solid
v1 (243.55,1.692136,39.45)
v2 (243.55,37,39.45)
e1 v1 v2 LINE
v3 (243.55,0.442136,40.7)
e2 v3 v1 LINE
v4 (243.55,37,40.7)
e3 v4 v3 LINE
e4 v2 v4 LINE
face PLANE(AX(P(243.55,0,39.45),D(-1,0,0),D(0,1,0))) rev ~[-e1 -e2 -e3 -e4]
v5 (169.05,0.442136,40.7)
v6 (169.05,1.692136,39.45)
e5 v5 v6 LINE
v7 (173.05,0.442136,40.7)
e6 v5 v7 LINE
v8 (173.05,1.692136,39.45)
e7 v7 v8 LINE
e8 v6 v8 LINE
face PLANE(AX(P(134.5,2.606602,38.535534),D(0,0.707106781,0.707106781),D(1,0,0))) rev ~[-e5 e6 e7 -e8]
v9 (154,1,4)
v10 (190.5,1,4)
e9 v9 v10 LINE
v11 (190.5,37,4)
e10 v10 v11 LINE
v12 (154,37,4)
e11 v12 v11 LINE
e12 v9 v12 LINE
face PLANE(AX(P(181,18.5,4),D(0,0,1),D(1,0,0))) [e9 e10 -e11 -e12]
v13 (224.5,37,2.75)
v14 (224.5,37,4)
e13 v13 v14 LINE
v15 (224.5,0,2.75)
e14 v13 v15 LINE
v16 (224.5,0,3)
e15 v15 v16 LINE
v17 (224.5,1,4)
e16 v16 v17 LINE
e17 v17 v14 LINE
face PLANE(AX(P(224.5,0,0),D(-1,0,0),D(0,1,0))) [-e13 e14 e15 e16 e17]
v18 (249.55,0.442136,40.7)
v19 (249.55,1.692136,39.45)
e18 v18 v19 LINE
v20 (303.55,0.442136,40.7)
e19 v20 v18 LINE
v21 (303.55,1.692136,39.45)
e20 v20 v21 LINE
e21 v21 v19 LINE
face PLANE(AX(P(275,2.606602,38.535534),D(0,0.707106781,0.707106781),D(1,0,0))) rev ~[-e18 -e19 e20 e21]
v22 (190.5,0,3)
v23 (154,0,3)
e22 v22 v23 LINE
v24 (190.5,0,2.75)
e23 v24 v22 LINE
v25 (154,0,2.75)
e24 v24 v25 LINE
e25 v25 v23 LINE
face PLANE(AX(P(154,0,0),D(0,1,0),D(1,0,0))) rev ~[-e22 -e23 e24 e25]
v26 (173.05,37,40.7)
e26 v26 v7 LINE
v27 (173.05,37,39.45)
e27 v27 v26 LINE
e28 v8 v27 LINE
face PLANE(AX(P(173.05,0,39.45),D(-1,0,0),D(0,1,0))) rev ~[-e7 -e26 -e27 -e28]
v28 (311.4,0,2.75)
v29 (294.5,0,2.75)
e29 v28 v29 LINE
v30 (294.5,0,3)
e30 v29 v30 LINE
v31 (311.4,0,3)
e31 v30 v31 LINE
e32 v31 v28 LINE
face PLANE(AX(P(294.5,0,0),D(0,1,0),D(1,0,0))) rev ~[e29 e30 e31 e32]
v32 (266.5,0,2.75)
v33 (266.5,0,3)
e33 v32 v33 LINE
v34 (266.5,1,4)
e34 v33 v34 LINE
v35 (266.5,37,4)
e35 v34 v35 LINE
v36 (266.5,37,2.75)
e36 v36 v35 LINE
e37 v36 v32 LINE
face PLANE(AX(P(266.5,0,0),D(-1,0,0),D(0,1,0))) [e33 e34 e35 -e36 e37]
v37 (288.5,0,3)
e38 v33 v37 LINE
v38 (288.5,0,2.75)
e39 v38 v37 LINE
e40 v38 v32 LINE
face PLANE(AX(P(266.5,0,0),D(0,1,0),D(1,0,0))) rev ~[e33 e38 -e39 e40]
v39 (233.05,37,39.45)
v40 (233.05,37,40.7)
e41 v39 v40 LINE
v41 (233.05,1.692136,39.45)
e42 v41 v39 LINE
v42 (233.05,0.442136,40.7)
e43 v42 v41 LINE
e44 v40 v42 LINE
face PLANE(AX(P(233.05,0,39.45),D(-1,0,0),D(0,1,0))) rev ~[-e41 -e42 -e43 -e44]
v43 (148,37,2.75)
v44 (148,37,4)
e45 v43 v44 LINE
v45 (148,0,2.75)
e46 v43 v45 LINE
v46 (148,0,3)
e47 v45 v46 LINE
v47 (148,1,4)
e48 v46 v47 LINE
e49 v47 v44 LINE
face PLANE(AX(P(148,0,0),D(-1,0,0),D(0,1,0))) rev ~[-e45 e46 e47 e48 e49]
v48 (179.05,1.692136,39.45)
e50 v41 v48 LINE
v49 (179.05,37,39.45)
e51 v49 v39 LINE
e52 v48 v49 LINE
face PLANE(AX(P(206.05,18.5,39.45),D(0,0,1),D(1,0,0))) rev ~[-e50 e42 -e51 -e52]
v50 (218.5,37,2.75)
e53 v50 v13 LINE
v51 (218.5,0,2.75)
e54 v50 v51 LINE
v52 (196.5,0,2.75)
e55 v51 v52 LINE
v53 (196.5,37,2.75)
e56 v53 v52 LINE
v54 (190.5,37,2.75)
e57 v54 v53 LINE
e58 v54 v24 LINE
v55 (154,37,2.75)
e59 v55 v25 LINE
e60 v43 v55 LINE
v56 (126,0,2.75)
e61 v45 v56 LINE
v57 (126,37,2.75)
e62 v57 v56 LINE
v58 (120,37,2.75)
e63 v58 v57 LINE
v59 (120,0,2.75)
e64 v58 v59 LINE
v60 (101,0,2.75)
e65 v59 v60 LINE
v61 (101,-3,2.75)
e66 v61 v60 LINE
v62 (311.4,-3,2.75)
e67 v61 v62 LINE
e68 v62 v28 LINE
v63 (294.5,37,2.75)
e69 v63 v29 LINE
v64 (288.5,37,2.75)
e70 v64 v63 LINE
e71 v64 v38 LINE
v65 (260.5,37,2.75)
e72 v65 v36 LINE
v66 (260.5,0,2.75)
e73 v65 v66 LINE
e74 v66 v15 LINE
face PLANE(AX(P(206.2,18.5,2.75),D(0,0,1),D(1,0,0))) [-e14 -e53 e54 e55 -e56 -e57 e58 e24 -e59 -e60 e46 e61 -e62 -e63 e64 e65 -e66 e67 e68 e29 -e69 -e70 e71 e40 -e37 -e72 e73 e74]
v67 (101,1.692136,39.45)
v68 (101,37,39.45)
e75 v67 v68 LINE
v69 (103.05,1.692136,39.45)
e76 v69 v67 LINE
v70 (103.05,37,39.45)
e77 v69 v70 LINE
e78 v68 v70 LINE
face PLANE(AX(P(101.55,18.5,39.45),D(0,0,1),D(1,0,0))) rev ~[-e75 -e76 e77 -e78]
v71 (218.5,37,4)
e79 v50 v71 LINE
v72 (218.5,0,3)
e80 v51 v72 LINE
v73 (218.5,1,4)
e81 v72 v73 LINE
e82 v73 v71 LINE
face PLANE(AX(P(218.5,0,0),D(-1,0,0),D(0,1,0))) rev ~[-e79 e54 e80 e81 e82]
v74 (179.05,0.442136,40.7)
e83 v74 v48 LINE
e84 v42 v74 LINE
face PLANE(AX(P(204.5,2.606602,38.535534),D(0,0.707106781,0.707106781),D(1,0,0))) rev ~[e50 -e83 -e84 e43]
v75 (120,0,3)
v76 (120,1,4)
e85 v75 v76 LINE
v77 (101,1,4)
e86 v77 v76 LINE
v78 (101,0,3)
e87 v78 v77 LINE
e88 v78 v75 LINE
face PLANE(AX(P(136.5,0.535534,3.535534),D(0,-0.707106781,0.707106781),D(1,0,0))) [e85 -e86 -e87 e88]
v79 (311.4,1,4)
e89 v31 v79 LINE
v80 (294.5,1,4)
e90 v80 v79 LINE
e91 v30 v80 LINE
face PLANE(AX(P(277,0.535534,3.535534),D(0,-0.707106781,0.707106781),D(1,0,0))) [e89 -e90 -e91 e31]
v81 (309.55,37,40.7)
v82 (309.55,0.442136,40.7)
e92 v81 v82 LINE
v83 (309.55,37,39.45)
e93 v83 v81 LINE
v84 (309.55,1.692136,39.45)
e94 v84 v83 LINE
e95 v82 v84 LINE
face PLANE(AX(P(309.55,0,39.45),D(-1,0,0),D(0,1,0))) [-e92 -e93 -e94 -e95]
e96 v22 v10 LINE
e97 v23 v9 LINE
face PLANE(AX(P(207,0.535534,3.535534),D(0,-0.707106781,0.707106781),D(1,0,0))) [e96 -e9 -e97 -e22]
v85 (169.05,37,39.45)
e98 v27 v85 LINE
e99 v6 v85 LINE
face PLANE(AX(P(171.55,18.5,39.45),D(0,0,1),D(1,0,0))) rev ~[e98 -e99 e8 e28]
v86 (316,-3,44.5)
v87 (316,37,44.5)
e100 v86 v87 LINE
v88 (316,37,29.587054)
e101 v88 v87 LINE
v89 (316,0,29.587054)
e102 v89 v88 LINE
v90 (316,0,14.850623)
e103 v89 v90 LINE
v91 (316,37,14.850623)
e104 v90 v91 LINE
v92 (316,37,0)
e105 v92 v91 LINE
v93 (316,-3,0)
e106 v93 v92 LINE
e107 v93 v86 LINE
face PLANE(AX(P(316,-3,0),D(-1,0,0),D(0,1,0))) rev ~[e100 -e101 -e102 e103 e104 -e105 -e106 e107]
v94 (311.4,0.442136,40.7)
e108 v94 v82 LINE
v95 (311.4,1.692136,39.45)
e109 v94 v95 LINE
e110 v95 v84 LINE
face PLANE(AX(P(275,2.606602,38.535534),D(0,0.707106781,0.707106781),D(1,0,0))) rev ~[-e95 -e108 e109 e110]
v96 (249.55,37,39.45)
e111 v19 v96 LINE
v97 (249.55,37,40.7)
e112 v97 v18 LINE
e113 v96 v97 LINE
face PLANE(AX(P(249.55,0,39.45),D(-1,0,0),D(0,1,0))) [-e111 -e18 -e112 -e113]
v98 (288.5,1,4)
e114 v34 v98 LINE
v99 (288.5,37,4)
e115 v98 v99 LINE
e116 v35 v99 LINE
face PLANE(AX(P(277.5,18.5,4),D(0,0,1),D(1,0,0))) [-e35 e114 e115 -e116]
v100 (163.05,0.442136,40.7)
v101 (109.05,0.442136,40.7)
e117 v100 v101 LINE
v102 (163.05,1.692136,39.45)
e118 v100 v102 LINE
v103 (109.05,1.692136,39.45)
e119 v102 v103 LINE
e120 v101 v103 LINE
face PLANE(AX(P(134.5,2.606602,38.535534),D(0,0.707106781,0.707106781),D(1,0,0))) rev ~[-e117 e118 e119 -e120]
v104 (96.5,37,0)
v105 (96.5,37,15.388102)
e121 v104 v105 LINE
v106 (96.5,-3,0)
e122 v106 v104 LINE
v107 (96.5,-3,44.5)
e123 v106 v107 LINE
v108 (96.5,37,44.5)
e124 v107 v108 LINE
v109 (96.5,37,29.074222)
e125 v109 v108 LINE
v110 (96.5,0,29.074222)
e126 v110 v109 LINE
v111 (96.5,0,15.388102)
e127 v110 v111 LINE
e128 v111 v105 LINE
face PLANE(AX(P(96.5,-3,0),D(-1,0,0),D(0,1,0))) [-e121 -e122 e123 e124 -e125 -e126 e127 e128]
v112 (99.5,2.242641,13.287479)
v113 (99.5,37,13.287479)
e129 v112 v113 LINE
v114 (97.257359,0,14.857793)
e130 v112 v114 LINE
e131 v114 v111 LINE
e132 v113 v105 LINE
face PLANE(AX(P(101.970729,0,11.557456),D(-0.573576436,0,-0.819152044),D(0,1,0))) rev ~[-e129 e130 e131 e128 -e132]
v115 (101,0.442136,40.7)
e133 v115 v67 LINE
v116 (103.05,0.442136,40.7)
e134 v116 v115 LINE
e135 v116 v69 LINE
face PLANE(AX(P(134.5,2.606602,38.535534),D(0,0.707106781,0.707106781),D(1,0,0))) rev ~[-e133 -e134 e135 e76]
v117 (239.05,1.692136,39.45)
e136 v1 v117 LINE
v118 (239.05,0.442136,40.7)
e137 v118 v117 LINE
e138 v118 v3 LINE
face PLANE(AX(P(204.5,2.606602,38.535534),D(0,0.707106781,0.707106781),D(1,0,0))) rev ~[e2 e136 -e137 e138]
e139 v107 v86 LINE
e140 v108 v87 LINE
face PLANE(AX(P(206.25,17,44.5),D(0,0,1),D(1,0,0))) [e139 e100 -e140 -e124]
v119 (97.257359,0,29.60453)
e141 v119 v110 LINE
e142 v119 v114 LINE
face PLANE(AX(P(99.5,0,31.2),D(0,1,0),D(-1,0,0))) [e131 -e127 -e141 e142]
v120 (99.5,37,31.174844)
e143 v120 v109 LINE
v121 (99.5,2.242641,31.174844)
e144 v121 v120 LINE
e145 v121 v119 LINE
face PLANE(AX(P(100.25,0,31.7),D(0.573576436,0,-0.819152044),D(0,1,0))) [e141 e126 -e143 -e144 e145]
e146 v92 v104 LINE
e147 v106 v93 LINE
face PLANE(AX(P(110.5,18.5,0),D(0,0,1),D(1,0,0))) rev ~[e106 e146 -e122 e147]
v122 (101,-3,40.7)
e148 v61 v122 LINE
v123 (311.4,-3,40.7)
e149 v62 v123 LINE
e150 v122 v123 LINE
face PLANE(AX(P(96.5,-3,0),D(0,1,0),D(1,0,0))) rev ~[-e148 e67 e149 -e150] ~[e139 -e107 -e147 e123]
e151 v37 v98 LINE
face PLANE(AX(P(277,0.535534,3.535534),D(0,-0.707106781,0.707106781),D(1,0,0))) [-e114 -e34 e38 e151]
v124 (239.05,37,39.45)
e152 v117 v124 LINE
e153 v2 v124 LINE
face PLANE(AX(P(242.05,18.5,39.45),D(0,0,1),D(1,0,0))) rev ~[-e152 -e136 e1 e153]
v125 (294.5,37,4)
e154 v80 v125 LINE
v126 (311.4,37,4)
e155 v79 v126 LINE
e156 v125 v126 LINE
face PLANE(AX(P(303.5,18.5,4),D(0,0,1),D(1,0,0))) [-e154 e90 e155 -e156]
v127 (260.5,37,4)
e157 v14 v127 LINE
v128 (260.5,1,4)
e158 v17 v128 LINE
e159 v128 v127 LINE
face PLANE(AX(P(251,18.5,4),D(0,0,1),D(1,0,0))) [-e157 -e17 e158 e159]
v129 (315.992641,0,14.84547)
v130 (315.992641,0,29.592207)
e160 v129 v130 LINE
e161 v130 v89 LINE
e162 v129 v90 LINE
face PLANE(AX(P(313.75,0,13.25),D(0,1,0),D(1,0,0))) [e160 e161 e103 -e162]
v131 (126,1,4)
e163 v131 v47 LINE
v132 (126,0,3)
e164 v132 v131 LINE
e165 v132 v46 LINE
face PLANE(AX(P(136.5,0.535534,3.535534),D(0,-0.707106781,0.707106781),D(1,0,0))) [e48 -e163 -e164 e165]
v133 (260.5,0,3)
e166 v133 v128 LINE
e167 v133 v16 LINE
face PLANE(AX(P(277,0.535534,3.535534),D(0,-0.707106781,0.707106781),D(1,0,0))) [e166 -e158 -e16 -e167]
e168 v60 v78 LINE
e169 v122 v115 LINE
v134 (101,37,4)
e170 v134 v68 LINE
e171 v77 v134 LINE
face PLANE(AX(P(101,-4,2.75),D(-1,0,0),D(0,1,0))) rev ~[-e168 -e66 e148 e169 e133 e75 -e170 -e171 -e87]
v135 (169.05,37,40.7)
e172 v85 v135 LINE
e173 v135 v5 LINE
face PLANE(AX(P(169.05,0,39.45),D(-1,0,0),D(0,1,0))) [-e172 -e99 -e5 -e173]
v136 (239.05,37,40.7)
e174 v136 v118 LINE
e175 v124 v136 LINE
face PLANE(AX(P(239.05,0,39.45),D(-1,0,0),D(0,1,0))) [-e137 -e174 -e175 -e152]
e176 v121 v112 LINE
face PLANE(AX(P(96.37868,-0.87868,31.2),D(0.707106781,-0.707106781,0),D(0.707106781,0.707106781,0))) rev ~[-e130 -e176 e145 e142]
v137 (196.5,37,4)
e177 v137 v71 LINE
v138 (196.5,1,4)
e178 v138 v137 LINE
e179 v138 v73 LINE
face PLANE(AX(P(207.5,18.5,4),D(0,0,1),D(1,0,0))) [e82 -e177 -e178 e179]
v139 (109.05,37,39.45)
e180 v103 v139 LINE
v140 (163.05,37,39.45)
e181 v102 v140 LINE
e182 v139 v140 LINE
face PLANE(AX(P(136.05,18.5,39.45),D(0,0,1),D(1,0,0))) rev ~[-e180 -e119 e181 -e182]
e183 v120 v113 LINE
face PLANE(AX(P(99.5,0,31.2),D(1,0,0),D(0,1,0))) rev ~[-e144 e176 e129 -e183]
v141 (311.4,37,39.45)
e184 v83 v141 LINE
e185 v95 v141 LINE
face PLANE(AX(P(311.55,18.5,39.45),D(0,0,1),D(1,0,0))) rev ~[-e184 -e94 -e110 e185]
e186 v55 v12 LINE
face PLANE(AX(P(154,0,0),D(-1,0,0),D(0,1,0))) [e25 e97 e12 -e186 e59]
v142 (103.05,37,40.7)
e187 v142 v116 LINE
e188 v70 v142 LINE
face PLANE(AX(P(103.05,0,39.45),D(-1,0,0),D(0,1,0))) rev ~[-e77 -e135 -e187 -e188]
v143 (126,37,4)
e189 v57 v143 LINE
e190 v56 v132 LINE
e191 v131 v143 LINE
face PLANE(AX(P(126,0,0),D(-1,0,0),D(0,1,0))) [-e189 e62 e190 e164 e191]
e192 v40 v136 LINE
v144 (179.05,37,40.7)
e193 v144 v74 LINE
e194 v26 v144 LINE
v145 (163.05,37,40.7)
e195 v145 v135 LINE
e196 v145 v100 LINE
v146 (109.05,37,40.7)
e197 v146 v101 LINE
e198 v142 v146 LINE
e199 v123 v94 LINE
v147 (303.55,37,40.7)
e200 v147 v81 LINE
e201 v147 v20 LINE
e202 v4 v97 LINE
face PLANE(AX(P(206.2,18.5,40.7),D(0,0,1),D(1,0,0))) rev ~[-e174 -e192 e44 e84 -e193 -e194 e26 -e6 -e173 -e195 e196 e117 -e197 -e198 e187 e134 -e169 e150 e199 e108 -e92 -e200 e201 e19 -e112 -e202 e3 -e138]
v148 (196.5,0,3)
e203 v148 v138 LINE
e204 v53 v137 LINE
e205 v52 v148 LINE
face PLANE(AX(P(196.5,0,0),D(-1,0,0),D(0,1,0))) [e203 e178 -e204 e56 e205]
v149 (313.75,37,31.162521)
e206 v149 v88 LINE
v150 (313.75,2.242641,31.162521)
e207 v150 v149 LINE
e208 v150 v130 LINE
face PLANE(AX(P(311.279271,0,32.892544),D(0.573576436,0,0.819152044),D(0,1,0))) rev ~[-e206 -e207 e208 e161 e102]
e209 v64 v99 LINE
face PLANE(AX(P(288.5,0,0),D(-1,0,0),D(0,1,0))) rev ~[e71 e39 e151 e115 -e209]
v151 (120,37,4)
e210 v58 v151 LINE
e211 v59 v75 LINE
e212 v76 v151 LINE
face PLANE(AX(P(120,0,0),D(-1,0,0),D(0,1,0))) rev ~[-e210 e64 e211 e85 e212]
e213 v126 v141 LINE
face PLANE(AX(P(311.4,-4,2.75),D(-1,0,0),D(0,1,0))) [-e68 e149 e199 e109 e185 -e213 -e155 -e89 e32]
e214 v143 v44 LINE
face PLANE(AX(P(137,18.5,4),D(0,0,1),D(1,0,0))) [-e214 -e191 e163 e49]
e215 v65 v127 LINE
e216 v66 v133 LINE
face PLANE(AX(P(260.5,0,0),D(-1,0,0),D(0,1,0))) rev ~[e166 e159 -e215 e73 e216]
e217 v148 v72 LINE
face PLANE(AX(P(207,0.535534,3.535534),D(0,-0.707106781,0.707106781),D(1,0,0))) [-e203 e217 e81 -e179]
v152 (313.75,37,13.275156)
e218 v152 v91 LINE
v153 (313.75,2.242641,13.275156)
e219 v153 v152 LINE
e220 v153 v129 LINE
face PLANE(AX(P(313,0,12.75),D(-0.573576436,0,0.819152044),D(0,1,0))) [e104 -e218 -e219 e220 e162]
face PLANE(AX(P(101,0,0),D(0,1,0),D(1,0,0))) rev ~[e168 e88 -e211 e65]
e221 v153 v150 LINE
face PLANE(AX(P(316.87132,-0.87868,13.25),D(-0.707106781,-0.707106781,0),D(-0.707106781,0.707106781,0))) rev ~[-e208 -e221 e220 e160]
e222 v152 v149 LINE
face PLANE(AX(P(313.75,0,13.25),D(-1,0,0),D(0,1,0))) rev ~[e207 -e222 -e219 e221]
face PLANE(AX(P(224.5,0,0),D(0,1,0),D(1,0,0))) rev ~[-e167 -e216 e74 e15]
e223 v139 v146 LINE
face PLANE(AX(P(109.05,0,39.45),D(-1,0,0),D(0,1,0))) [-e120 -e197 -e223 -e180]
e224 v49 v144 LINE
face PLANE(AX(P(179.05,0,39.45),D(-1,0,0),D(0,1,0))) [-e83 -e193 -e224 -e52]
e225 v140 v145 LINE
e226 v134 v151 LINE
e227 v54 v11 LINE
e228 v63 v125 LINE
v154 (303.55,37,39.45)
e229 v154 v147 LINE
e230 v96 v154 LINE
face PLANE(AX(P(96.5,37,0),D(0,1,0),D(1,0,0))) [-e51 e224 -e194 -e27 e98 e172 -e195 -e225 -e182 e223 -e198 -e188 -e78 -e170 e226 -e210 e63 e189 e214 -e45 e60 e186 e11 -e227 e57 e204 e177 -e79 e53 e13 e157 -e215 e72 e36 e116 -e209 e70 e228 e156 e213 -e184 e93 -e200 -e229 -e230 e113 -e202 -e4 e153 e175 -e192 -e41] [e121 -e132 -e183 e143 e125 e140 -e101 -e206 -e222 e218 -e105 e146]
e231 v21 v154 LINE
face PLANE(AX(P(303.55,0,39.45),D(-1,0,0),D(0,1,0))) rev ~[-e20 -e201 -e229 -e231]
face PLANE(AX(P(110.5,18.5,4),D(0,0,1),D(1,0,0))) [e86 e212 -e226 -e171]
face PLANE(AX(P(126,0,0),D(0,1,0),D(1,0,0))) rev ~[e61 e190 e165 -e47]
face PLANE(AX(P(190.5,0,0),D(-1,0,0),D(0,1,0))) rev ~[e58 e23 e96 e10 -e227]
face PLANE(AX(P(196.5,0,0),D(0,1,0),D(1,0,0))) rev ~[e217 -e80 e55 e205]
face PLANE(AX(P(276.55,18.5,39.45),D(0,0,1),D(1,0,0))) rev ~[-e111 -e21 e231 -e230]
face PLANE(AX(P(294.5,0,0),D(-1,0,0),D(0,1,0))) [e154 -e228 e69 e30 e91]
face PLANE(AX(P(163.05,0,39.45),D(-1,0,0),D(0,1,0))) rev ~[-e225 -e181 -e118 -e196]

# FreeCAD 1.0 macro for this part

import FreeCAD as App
import Part
import Sketcher


def add_polygon(sketch, points):
    """Adds a closed chain of lines whose ends are joined by coincident constraints."""
    first, n = sketch.GeometryCount, len(points)
    for a, b in zip(points, points[1:] + points[:1]):
        sketch.addGeometry(Part.LineSegment(App.Vector(*a, 0), App.Vector(*b, 0)), False)
    for i in range(n):
        sketch.addConstraint(Sketcher.Constraint("Coincident", first + i, 2, first + (i + 1) % n, 1))

doc = App.newDocument("Part")
body = doc.addObject("PartDesign::Body", "Body")

sketch1 = body.newObject("Sketcher::SketchObject", "Sketch")
sketch1.AttachmentSupport = (doc.getObject("XY_Plane"), [""])
sketch1.MapMode = "FlatFace"
add_polygon(sketch1, [(0, 10), (0, 0), (85, 0), (85, 10)])
sketch1.addConstraint([
    Sketcher.Constraint("Vertical", 0),
    Sketcher.Constraint("Horizontal", 1),
    Sketcher.Constraint("Vertical", 2),
    Sketcher.Constraint("Horizontal", 3),
    Sketcher.Constraint("Coincident", 0, 2, -1, 1),
    Sketcher.Constraint("DistanceX", 1, 1, 1, 2, 85.0),
    Sketcher.Constraint("DistanceY", 0, 2, 0, 1, 10.0),
])
pad1 = body.newObject("PartDesign::Pad", "Pad")
pad1.Profile = sketch1
pad1.Length = 10
body2 = doc.addObject("PartDesign::Body", "Body001")
doc.recompute()

body.Placement = App.Placement(App.Vector(13, -8, 35), App.Rotation(App.Vector(-1, 0, 0), 45))
boolean = body2.newObject("PartDesign::Boolean", "Boolean")
boolean.Type = "Fuse"
boolean.addObjects([body])
body3 = doc.addObject("PartDesign::Body", "Body002")

sketch2 = body3.newObject("Sketcher::SketchObject", "Sketch001")
sketch2.AttachmentSupport = (doc.getObject("XY_Plane002"), [""])
sketch2.MapMode = "FlatFace"
sketch2.AttachmentOffset = App.Placement(App.Vector(0, 0, 39.45), App.Rotation())
add_polygon(sketch2, [(21.1, 37), (21.1, 0), (24.1, 0), (24.1, 37)])
sketch2.addConstraint([
    Sketcher.Constraint("Vertical", 0),
    Sketcher.Constraint("Horizontal", 1),
    Sketcher.Constraint("Vertical", 2),
    Sketcher.Constraint("Horizontal", 3),
    Sketcher.Constraint("PointOnObject", 0, 2, -1),
    Sketcher.Constraint("DistanceX", 1, 1, 1, 2, 3.0),
    Sketcher.Constraint("DistanceY", 0, 2, 0, 1, 37.0),
    Sketcher.Constraint("DistanceX", -1, 1, 0, 2, 21.05),
])
pad2 = body3.newObject("PartDesign::Pad", "Pad001")
pad2.Profile = sketch2
pad2.Length = 4
body4 = doc.addObject("PartDesign::Body", "Body003")

sketch3 = body4.newObject("Sketcher::SketchObject", "Sketch002")
sketch3.AttachmentSupport = (doc.getObject("XY_Plane003"), [""])
sketch3.MapMode = "FlatFace"
sketch3.AttachmentOffset = App.Placement(App.Vector(0, 0, 39.45), App.Rotation())
add_polygon(sketch3, [(90, 37), (90, 0), (94, 0), (94, 37)])
sketch3.addConstraint([
    Sketcher.Constraint("Vertical", 0),
    Sketcher.Constraint("Horizontal", 1),
    Sketcher.Constraint("Vertical", 2),
    Sketcher.Constraint("Horizontal", 3),
    Sketcher.Constraint("PointOnObject", 0, 2, -1),
    Sketcher.Constraint("DistanceX", 1, 1, 1, 2, 4.0),
    Sketcher.Constraint("DistanceY", 0, 2, 0, 1, 37.0),
    Sketcher.Constraint("DistanceX", -1, 1, 0, 2, 90.05),
])
pad3 = body4.newObject("PartDesign::Pad", "Pad002")
pad3.Profile = sketch3
pad3.Length = 4
body5 = doc.addObject("PartDesign::Body", "Body004")
body5.AllowCompound = True

sketch4 = body5.newObject("Sketcher::SketchObject", "Sketch003")
sketch4.AttachmentSupport = (doc.getObject("XY_Plane004"), [""])
sketch4.MapMode = "FlatFace"
sketch4.AttachmentOffset = App.Placement(App.Vector(0, 0, 39.45), App.Rotation())
add_polygon(sketch4, [(30, 37), (30, 0), (84, 0), (84, 37)])
sketch4.addConstraint([
    Sketcher.Constraint("Vertical", 0),
    Sketcher.Constraint("Horizontal", 1),
    Sketcher.Constraint("Vertical", 2),
    Sketcher.Constraint("Horizontal", 3),
    Sketcher.Constraint("PointOnObject", 0, 2, -1),
    Sketcher.Constraint("DistanceX", 1, 1, 1, 2, 54.0),
    Sketcher.Constraint("DistanceY", 0, 2, 0, 1, 37.0),
    Sketcher.Constraint("DistanceX", -1, 1, 0, 2, 30.05),
])
pad4 = body5.newObject("PartDesign::Pad", "Pad003")
pad4.Profile = sketch4
pad4.Length = 4
doc.recompute()

boolean2 = body5.newObject("PartDesign::Boolean", "Boolean001")
boolean2.Type = "Fuse"
boolean2.addObjects([body3])
doc.recompute()

boolean3 = body5.newObject("PartDesign::Boolean", "Boolean002")
boolean3.Type = "Fuse"
boolean3.addObjects([body4])
doc.recompute()

boolean4 = body5.newObject("PartDesign::Boolean", "Boolean003")
boolean4.Type = "Cut"
boolean4.addObjects([body2])
body6 = doc.addObject("PartDesign::Body", "Body005")
body6.AllowCompound = True
doc.recompute()

body5.Placement = App.Placement(App.Vector(219.5, 0, 0), App.Rotation(App.Vector(0, 0, 1), 0))
boolean5 = body6.newObject("PartDesign::Boolean", "Boolean004")
boolean5.Type = "Fuse"
boolean5.addObjects([body5])
body7 = doc.addObject("PartDesign::Body", "Body006")

sketch5 = body7.newObject("Sketcher::SketchObject", "Sketch004")
sketch5.AttachmentSupport = (doc.getObject("XY_Plane006"), [""])
sketch5.MapMode = "FlatFace"
add_polygon(sketch5, [(0, 10), (0, 0), (85, 0), (85, 10)])
sketch5.addConstraint([
    Sketcher.Constraint("Vertical", 0),
    Sketcher.Constraint("Horizontal", 1),
    Sketcher.Constraint("Vertical", 2),
    Sketcher.Constraint("Horizontal", 3),
    Sketcher.Constraint("Coincident", 0, 2, -1, 1),
    Sketcher.Constraint("DistanceX", 1, 1, 1, 2, 85.0),
    Sketcher.Constraint("DistanceY", 0, 2, 0, 1, 10.0),
])
pad5 = body7.newObject("PartDesign::Pad", "Pad004")
pad5.Profile = sketch5
pad5.Length = 10
body8 = doc.addObject("PartDesign::Body", "Body007")
doc.recompute()

body7.Placement = App.Placement(App.Vector(13, -8, 35), App.Rotation(App.Vector(-1, 0, 0), 45))
boolean6 = body8.newObject("PartDesign::Boolean", "Boolean005")
boolean6.Type = "Fuse"
boolean6.addObjects([body7])
body9 = doc.addObject("PartDesign::Body", "Body008")

sketch6 = body9.newObject("Sketcher::SketchObject", "Sketch005")
sketch6.AttachmentSupport = (doc.getObject("XY_Plane008"), [""])
sketch6.MapMode = "FlatFace"
sketch6.AttachmentOffset = App.Placement(App.Vector(0, 0, 39.45), App.Rotation())
add_polygon(sketch6, [(21.1, 37), (21.1, 0), (24.1, 0), (24.1, 37)])
sketch6.addConstraint([
    Sketcher.Constraint("Vertical", 0),
    Sketcher.Constraint("Horizontal", 1),
    Sketcher.Constraint("Vertical", 2),
    Sketcher.Constraint("Horizontal", 3),
    Sketcher.Constraint("PointOnObject", 0, 2, -1),
    Sketcher.Constraint("DistanceX", 1, 1, 1, 2, 3.0),
    Sketcher.Constraint("DistanceY", 0, 2, 0, 1, 37.0),
    Sketcher.Constraint("DistanceX", -1, 1, 0, 2, 21.05),
])
pad6 = body9.newObject("PartDesign::Pad", "Pad005")
pad6.Profile = sketch6
pad6.Length = 4
body10 = doc.addObject("PartDesign::Body", "Body009")

sketch7 = body10.newObject("Sketcher::SketchObject", "Sketch006")
sketch7.AttachmentSupport = (doc.getObject("XY_Plane009"), [""])
sketch7.MapMode = "FlatFace"
sketch7.AttachmentOffset = App.Placement(App.Vector(0, 0, 39.45), App.Rotation())
add_polygon(sketch7, [(90, 37), (90, 0), (94, 0), (94, 37)])
sketch7.addConstraint([
    Sketcher.Constraint("Vertical", 0),
    Sketcher.Constraint("Horizontal", 1),
    Sketcher.Constraint("Vertical", 2),
    Sketcher.Constraint("Horizontal", 3),
    Sketcher.Constraint("PointOnObject", 0, 2, -1),
    Sketcher.Constraint("DistanceX", 1, 1, 1, 2, 4.0),
    Sketcher.Constraint("DistanceY", 0, 2, 0, 1, 37.0),
    Sketcher.Constraint("DistanceX", -1, 1, 0, 2, 90.05),
])
pad7 = body10.newObject("PartDesign::Pad", "Pad006")
pad7.Profile = sketch7
pad7.Length = 4
body11 = doc.addObject("PartDesign::Body", "Body010")
body11.AllowCompound = True

sketch8 = body11.newObject("Sketcher::SketchObject", "Sketch007")
sketch8.AttachmentSupport = (doc.getObject("XY_Plane010"), [""])
sketch8.MapMode = "FlatFace"
sketch8.AttachmentOffset = App.Placement(App.Vector(0, 0, 39.45), App.Rotation())
add_polygon(sketch8, [(30, 37), (30, 0), (84, 0), (84, 37)])
sketch8.addConstraint([
    Sketcher.Constraint("Vertical", 0),
    Sketcher.Constraint("Horizontal", 1),
    Sketcher.Constraint("Vertical", 2),
    Sketcher.Constraint("Horizontal", 3),
    Sketcher.Constraint("PointOnObject", 0, 2, -1),
    Sketcher.Constraint("DistanceX", 1, 1, 1, 2, 54.0),
    Sketcher.Constraint("DistanceY", 0, 2, 0, 1, 37.0),
    Sketcher.Constraint("DistanceX", -1, 1, 0, 2, 30.05),
])
pad8 = body11.newObject("PartDesign::Pad", "Pad007")
pad8.Profile = sketch8
pad8.Length = 4
doc.recompute()

boolean7 = body11.newObject("PartDesign::Boolean", "Boolean006")
boolean7.Type = "Fuse"
boolean7.addObjects([body9])
doc.recompute()

boolean8 = body11.newObject("PartDesign::Boolean", "Boolean007")
boolean8.Type = "Fuse"
boolean8.addObjects([body10])
doc.recompute()

boolean9 = body11.newObject("PartDesign::Boolean", "Boolean008")
boolean9.Type = "Cut"
boolean9.addObjects([body8])
body12 = doc.addObject("PartDesign::Body", "Body011")
body12.AllowCompound = True
doc.recompute()

body11.Placement = App.Placement(App.Vector(149, 0, 0), App.Rotation(App.Vector(0, 0, 1), 0))
boolean10 = body12.newObject("PartDesign::Boolean", "Boolean009")
boolean10.Type = "Fuse"
boolean10.addObjects([body11])
body13 = doc.addObject("PartDesign::Body", "Body012")

sketch9 = body13.newObject("Sketcher::SketchObject", "Sketch008")
sketch9.AttachmentSupport = (doc.getObject("XY_Plane012"), [""])
sketch9.MapMode = "FlatFace"
add_polygon(sketch9, [(0, 10), (0, 0), (85, 0), (85, 10)])
sketch9.addConstraint([
    Sketcher.Constraint("Vertical", 0),
    Sketcher.Constraint("Horizontal", 1),
    Sketcher.Constraint("Vertical", 2),
    Sketcher.Constraint("Horizontal", 3),
    Sketcher.Constraint("Coincident", 0, 2, -1, 1),
    Sketcher.Constraint("DistanceX", 1, 1, 1, 2, 85.0),
    Sketcher.Constraint("DistanceY", 0, 2, 0, 1, 10.0),
])
pad9 = body13.newObject("PartDesign::Pad", "Pad008")
pad9.Profile = sketch9
pad9.Length = 10
body14 = doc.addObject("PartDesign::Body", "Body013")
doc.recompute()

body13.Placement = App.Placement(App.Vector(13, -8, 35), App.Rotation(App.Vector(-1, 0, 0), 45))
boolean11 = body14.newObject("PartDesign::Boolean", "Boolean010")
boolean11.Type = "Fuse"
boolean11.addObjects([body13])
body15 = doc.addObject("PartDesign::Body", "Body014")

sketch10 = body15.newObject("Sketcher::SketchObject", "Sketch009")
sketch10.AttachmentSupport = (doc.getObject("XY_Plane014"), [""])
sketch10.MapMode = "FlatFace"
sketch10.AttachmentOffset = App.Placement(App.Vector(0, 0, 39.45), App.Rotation())
add_polygon(sketch10, [(21.1, 37), (21.1, 0), (24.1, 0), (24.1, 37)])
sketch10.addConstraint([
    Sketcher.Constraint("Vertical", 0),
    Sketcher.Constraint("Horizontal", 1),
    Sketcher.Constraint("Vertical", 2),
    Sketcher.Constraint("Horizontal", 3),
    Sketcher.Constraint("PointOnObject", 0, 2, -1),
    Sketcher.Constraint("DistanceX", 1, 1, 1, 2, 3.0),
    Sketcher.Constraint("DistanceY", 0, 2, 0, 1, 37.0),
    Sketcher.Constraint("DistanceX", -1, 1, 0, 2, 21.05),
])
pad10 = body15.newObject("PartDesign::Pad", "Pad009")
pad10.Profile = sketch10
pad10.Length = 4
body16 = doc.addObject("PartDesign::Body", "Body015")

sketch11 = body16.newObject("Sketcher::SketchObject", "Sketch010")
sketch11.AttachmentSupport = (doc.getObject("XY_Plane015"), [""])
sketch11.MapMode = "FlatFace"
sketch11.AttachmentOffset = App.Placement(App.Vector(0, 0, 39.45), App.Rotation())
add_polygon(sketch11, [(90, 37), (90, 0), (94, 0), (94, 37)])
sketch11.addConstraint([
    Sketcher.Constraint("Vertical", 0),
    Sketcher.Constraint("Horizontal", 1),
    Sketcher.Constraint("Vertical", 2),
    Sketcher.Constraint("Horizontal", 3),
    Sketcher.Constraint("PointOnObject", 0, 2, -1),
    Sketcher.Constraint("DistanceX", 1, 1, 1, 2, 4.0),
    Sketcher.Constraint("DistanceY", 0, 2, 0, 1, 37.0),
    Sketcher.Constraint("DistanceX", -1, 1, 0, 2, 90.05),
])
pad11 = body16.newObject("PartDesign::Pad", "Pad010")
pad11.Profile = sketch11
pad11.Length = 4
body17 = doc.addObject("PartDesign::Body", "Body016")
body17.AllowCompound = True

sketch12 = body17.newObject("Sketcher::SketchObject", "Sketch011")
sketch12.AttachmentSupport = (doc.getObject("XY_Plane016"), [""])
sketch12.MapMode = "FlatFace"
sketch12.AttachmentOffset = App.Placement(App.Vector(0, 0, 39.45), App.Rotation())
add_polygon(sketch12, [(30, 37), (30, 0), (84, 0), (84, 37)])
sketch12.addConstraint([
    Sketcher.Constraint("Vertical", 0),
    Sketcher.Constraint("Horizontal", 1),
    Sketcher.Constraint("Vertical", 2),
    Sketcher.Constraint("Horizontal", 3),
    Sketcher.Constraint("PointOnObject", 0, 2, -1),
    Sketcher.Constraint("DistanceX", 1, 1, 1, 2, 54.0),
    Sketcher.Constraint("DistanceY", 0, 2, 0, 1, 37.0),
    Sketcher.Constraint("DistanceX", -1, 1, 0, 2, 30.05),
])
pad12 = body17.newObject("PartDesign::Pad", "Pad011")
pad12.Profile = sketch12
pad12.Length = 4
doc.recompute()

boolean12 = body17.newObject("PartDesign::Boolean", "Boolean011")
boolean12.Type = "Fuse"
boolean12.addObjects([body15])
doc.recompute()

boolean13 = body17.newObject("PartDesign::Boolean", "Boolean012")
boolean13.Type = "Fuse"
boolean13.addObjects([body16])
doc.recompute()

boolean14 = body17.newObject("PartDesign::Boolean", "Boolean013")
boolean14.Type = "Cut"
boolean14.addObjects([body14])
body18 = doc.addObject("PartDesign::Body", "Body017")
body18.AllowCompound = True
doc.recompute()

body17.Placement = App.Placement(App.Vector(79, 0, 0), App.Rotation(App.Vector(0, 0, 1), 0))
boolean15 = body18.newObject("PartDesign::Boolean", "Boolean014")
boolean15.Type = "Fuse"
boolean15.addObjects([body17])
body19 = doc.addObject("PartDesign::Body", "Body018")

sketch13 = body19.newObject("Sketcher::SketchObject", "Sketch012")
sketch13.AttachmentSupport = (doc.getObject("XY_Plane018"), [""])
sketch13.MapMode = "FlatFace"
add_polygon(sketch13, [(0, 10), (0, 0), (71, 0), (71, 10)])
sketch13.addConstraint([
    Sketcher.Constraint("Vertical", 0),
    Sketcher.Constraint("Horizontal", 1),
    Sketcher.Constraint("Vertical", 2),
    Sketcher.Constraint("Horizontal", 3),
    Sketcher.Constraint("Coincident", 0, 2, -1, 1),
    Sketcher.Constraint("DistanceX", 1, 1, 1, 2, 71.0),
    Sketcher.Constraint("DistanceY", 0, 2, 0, 1, 10.0),
])
pad13 = body19.newObject("PartDesign::Pad", "Pad012")
pad13.Profile = sketch13
pad13.Length = 10
body20 = doc.addObject("PartDesign::Body", "Body019")
doc.recompute()

body19.Placement = App.Placement(App.Vector(22, -3, 0), App.Rotation(App.Vector(1, 0, 0), 45))
boolean16 = body20.newObject("PartDesign::Boolean", "Boolean015")
boolean16.Type = "Fuse"
boolean16.addObjects([body19])
body21 = doc.addObject("PartDesign::Body", "Body020")

sketch14 = body21.newObject("Sketcher::SketchObject", "Sketch013")
sketch14.AttachmentSupport = (doc.getObject("XY_Plane020"), [""])
sketch14.MapMode = "FlatFace"
add_polygon(sketch14, [(47, 37), (47, 0), (69, 0), (69, 37)])
sketch14.addConstraint([
    Sketcher.Constraint("Vertical", 0),
    Sketcher.Constraint("Horizontal", 1),
    Sketcher.Constraint("Vertical", 2),
    Sketcher.Constraint("Horizontal", 3),
    Sketcher.Constraint("PointOnObject", 0, 2, -1),
    Sketcher.Constraint("DistanceX", 1, 1, 1, 2, 22.0),
    Sketcher.Constraint("DistanceY", 0, 2, 0, 1, 37.0),
    Sketcher.Constraint("DistanceX", -1, 1, 0, 2, 47.0),
])
pad14 = body21.newObject("PartDesign::Pad", "Pad013")
pad14.Profile = sketch14
pad14.Length = 4
body22 = doc.addObject("PartDesign::Body", "Body021")

sketch15 = body22.newObject("Sketcher::SketchObject", "Sketch014")
sketch15.AttachmentSupport = (doc.getObject("XY_Plane021"), [""])
sketch15.MapMode = "FlatFace"
add_polygon(sketch15, [(75, 37), (75, 0), (93, 0), (93, 37)])
sketch15.addConstraint([
    Sketcher.Constraint("Vertical", 0),
    Sketcher.Constraint("Horizontal", 1),
    Sketcher.Constraint("Vertical", 2),
    Sketcher.Constraint("Horizontal", 3),
    Sketcher.Constraint("PointOnObject", 0, 2, -1),
    Sketcher.Constraint("DistanceX", 1, 1, 1, 2, 18.0),
    Sketcher.Constraint("DistanceY", 0, 2, 0, 1, 37.0),
    Sketcher.Constraint("DistanceX", -1, 1, 0, 2, 75.0),
])
pad15 = body22.newObject("PartDesign::Pad", "Pad014")
pad15.Profile = sketch15
pad15.Length = 4
body23 = doc.addObject("PartDesign::Body", "Body022")
body23.AllowCompound = True

sketch16 = body23.newObject("Sketcher::SketchObject", "Sketch015")
sketch16.AttachmentSupport = (doc.getObject("XY_Plane022"), [""])
sketch16.MapMode = "FlatFace"
add_polygon(sketch16, [(22, 37), (22, 0), (41, 0), (41, 37)])
sketch16.addConstraint([
    Sketcher.Constraint("Vertical", 0),
    Sketcher.Constraint("Horizontal", 1),
    Sketcher.Constraint("Vertical", 2),
    Sketcher.Constraint("Horizontal", 3),
    Sketcher.Constraint("PointOnObject", 0, 2, -1),
    Sketcher.Constraint("DistanceX", 1, 1, 1, 2, 19.0),
    Sketcher.Constraint("DistanceY", 0, 2, 0, 1, 37.0),
    Sketcher.Constraint("DistanceX", -1, 1, 0, 2, 22.0),
])
pad16 = body23.newObject("PartDesign::Pad", "Pad015")
pad16.Profile = sketch16
pad16.Length = 4
doc.recompute()

boolean17 = body23.newObject("PartDesign::Boolean", "Boolean016")
boolean17.Type = "Fuse"
boolean17.addObjects([body21])
doc.recompute()

boolean18 = body23.newObject("PartDesign::Boolean", "Boolean017")
boolean18.Type = "Fuse"
boolean18.addObjects([body22])
doc.recompute()

boolean19 = body23.newObject("PartDesign::Boolean", "Boolean018")
boolean19.Type = "Cut"
boolean19.addObjects([body20])
body24 = doc.addObject("PartDesign::Body", "Body023")
body24.AllowCompound = True
doc.recompute()

body23.Placement = App.Placement(App.Vector(219.5, 0, 0), App.Rotation(App.Vector(0, 0, 1), 0))
boolean20 = body24.newObject("PartDesign::Boolean", "Boolean019")
boolean20.Type = "Fuse"
boolean20.addObjects([body23])
body25 = doc.addObject("PartDesign::Body", "Body024")

sketch17 = body25.newObject("Sketcher::SketchObject", "Sketch016")
sketch17.AttachmentSupport = (doc.getObject("XY_Plane024"), [""])
sketch17.MapMode = "FlatFace"
add_polygon(sketch17, [(0, 10), (0, 0), (71, 0), (71, 10)])
sketch17.addConstraint([
    Sketcher.Constraint("Vertical", 0),
    Sketcher.Constraint("Horizontal", 1),
    Sketcher.Constraint("Vertical", 2),
    Sketcher.Constraint("Horizontal", 3),
    Sketcher.Constraint("Coincident", 0, 2, -1, 1),
    Sketcher.Constraint("DistanceX", 1, 1, 1, 2, 71.0),
    Sketcher.Constraint("DistanceY", 0, 2, 0, 1, 10.0),
])
pad17 = body25.newObject("PartDesign::Pad", "Pad016")
pad17.Profile = sketch17
pad17.Length = 10
body26 = doc.addObject("PartDesign::Body", "Body025")
doc.recompute()

body25.Placement = App.Placement(App.Vector(22, -3, 0), App.Rotation(App.Vector(1, 0, 0), 45))
boolean21 = body26.newObject("PartDesign::Boolean", "Boolean020")
boolean21.Type = "Fuse"
boolean21.addObjects([body25])
body27 = doc.addObject("PartDesign::Body", "Body026")

sketch18 = body27.newObject("Sketcher::SketchObject", "Sketch017")
sketch18.AttachmentSupport = (doc.getObject("XY_Plane026"), [""])
sketch18.MapMode = "FlatFace"
add_polygon(sketch18, [(47, 37), (47, 0), (69, 0), (69, 37)])
sketch18.addConstraint([
    Sketcher.Constraint("Vertical", 0),
    Sketcher.Constraint("Horizontal", 1),
    Sketcher.Constraint("Vertical", 2),
    Sketcher.Constraint("Horizontal", 3),
    Sketcher.Constraint("PointOnObject", 0, 2, -1),
    Sketcher.Constraint("DistanceX", 1, 1, 1, 2, 22.0),
    Sketcher.Constraint("DistanceY", 0, 2, 0, 1, 37.0),
    Sketcher.Constraint("DistanceX", -1, 1, 0, 2, 47.0),
])
pad18 = body27.newObject("PartDesign::Pad", "Pad017")
pad18.Profile = sketch18
pad18.Length = 4
body28 = doc.addObject("PartDesign::Body", "Body027")

sketch19 = body28.newObject("Sketcher::SketchObject", "Sketch018")
sketch19.AttachmentSupport = (doc.getObject("XY_Plane027"), [""])
sketch19.MapMode = "FlatFace"
add_polygon(sketch19, [(75, 37), (75, 0), (93, 0), (93, 37)])
sketch19.addConstraint([
    Sketcher.Constraint("Vertical", 0),
    Sketcher.Constraint("Horizontal", 1),
    Sketcher.Constraint("Vertical", 2),
    Sketcher.Constraint("Horizontal", 3),
    Sketcher.Constraint("PointOnObject", 0, 2, -1),
    Sketcher.Constraint("DistanceX", 1, 1, 1, 2, 18.0),
    Sketcher.Constraint("DistanceY", 0, 2, 0, 1, 37.0),
    Sketcher.Constraint("DistanceX", -1, 1, 0, 2, 75.0),
])
pad19 = body28.newObject("PartDesign::Pad", "Pad018")
pad19.Profile = sketch19
pad19.Length = 4
body29 = doc.addObject("PartDesign::Body", "Body028")
body29.AllowCompound = True

sketch20 = body29.newObject("Sketcher::SketchObject", "Sketch019")
sketch20.AttachmentSupport = (doc.getObject("XY_Plane028"), [""])
sketch20.MapMode = "FlatFace"
add_polygon(sketch20, [(22, 37), (22, 0), (41, 0), (41, 37)])
sketch20.addConstraint([
    Sketcher.Constraint("Vertical", 0),
    Sketcher.Constraint("Horizontal", 1),
    Sketcher.Constraint("Vertical", 2),
    Sketcher.Constraint("Horizontal", 3),
    Sketcher.Constraint("PointOnObject", 0, 2, -1),
    Sketcher.Constraint("DistanceX", 1, 1, 1, 2, 19.0),
    Sketcher.Constraint("DistanceY", 0, 2, 0, 1, 37.0),
    Sketcher.Constraint("DistanceX", -1, 1, 0, 2, 22.0),
])
pad20 = body29.newObject("PartDesign::Pad", "Pad019")
pad20.Profile = sketch20
pad20.Length = 4
doc.recompute()

boolean22 = body29.newObject("PartDesign::Boolean", "Boolean021")
boolean22.Type = "Fuse"
boolean22.addObjects([body27])
doc.recompute()

boolean23 = body29.newObject("PartDesign::Boolean", "Boolean022")
boolean23.Type = "Fuse"
boolean23.addObjects([body28])
doc.recompute()

boolean24 = body29.newObject("PartDesign::Boolean", "Boolean023")
boolean24.Type = "Cut"
boolean24.addObjects([body26])
body30 = doc.addObject("PartDesign::Body", "Body029")
body30.AllowCompound = True
doc.recompute()

body29.Placement = App.Placement(App.Vector(149.5, 0, 0), App.Rotation(App.Vector(0, 0, 1), 0))
boolean25 = body30.newObject("PartDesign::Boolean", "Boolean024")
boolean25.Type = "Fuse"
boolean25.addObjects([body29])
body31 = doc.addObject("PartDesign::Body", "Body030")

sketch21 = body31.newObject("Sketcher::SketchObject", "Sketch020")
sketch21.AttachmentSupport = (doc.getObject("XY_Plane030"), [""])
sketch21.MapMode = "FlatFace"
add_polygon(sketch21, [(0, 10), (0, 0), (71, 0), (71, 10)])
sketch21.addConstraint([
    Sketcher.Constraint("Vertical", 0),
    Sketcher.Constraint("Horizontal", 1),
    Sketcher.Constraint("Vertical", 2),
    Sketcher.Constraint("Horizontal", 3),
    Sketcher.Constraint("Coincident", 0, 2, -1, 1),
    Sketcher.Constraint("DistanceX", 1, 1, 1, 2, 71.0),
    Sketcher.Constraint("DistanceY", 0, 2, 0, 1, 10.0),
])
pad21 = body31.newObject("PartDesign::Pad", "Pad020")
pad21.Profile = sketch21
pad21.Length = 10
body32 = doc.addObject("PartDesign::Body", "Body031")
doc.recompute()

body31.Placement = App.Placement(App.Vector(22, -3, 0), App.Rotation(App.Vector(1, 0, 0), 45))
boolean26 = body32.newObject("PartDesign::Boolean", "Boolean025")
boolean26.Type = "Fuse"
boolean26.addObjects([body31])
body33 = doc.addObject("PartDesign::Body", "Body032")

sketch22 = body33.newObject("Sketcher::SketchObject", "Sketch021")
sketch22.AttachmentSupport = (doc.getObject("XY_Plane032"), [""])
sketch22.MapMode = "FlatFace"
add_polygon(sketch22, [(47, 37), (47, 0), (69, 0), (69, 37)])
sketch22.addConstraint([
    Sketcher.Constraint("Vertical", 0),
    Sketcher.Constraint("Horizontal", 1),
    Sketcher.Constraint("Vertical", 2),
    Sketcher.Constraint("Horizontal", 3),
    Sketcher.Constraint("PointOnObject", 0, 2, -1),
    Sketcher.Constraint("DistanceX", 1, 1, 1, 2, 22.0),
    Sketcher.Constraint("DistanceY", 0, 2, 0, 1, 37.0),
    Sketcher.Constraint("DistanceX", -1, 1, 0, 2, 47.0),
])
pad22 = body33.newObject("PartDesign::Pad", "Pad021")
pad22.Profile = sketch22
pad22.Length = 4
body34 = doc.addObject("PartDesign::Body", "Body033")

sketch23 = body34.newObject("Sketcher::SketchObject", "Sketch022")
sketch23.AttachmentSupport = (doc.getObject("XY_Plane033"), [""])
sketch23.MapMode = "FlatFace"
add_polygon(sketch23, [(75, 37), (75, 0), (93, 0), (93, 37)])
sketch23.addConstraint([
    Sketcher.Constraint("Vertical", 0),
    Sketcher.Constraint("Horizontal", 1),
    Sketcher.Constraint("Vertical", 2),
    Sketcher.Constraint("Horizontal", 3),
    Sketcher.Constraint("PointOnObject", 0, 2, -1),
    Sketcher.Constraint("DistanceX", 1, 1, 1, 2, 18.0),
    Sketcher.Constraint("DistanceY", 0, 2, 0, 1, 37.0),
    Sketcher.Constraint("DistanceX", -1, 1, 0, 2, 75.0),
])
pad23 = body34.newObject("PartDesign::Pad", "Pad022")
pad23.Profile = sketch23
pad23.Length = 4
body35 = doc.addObject("PartDesign::Body", "Body034")
body35.AllowCompound = True

sketch24 = body35.newObject("Sketcher::SketchObject", "Sketch023")
sketch24.AttachmentSupport = (doc.getObject("XY_Plane034"), [""])
sketch24.MapMode = "FlatFace"
add_polygon(sketch24, [(22, 37), (22, 0), (41, 0), (41, 37)])
sketch24.addConstraint([
    Sketcher.Constraint("Vertical", 0),
    Sketcher.Constraint("Horizontal", 1),
    Sketcher.Constraint("Vertical", 2),
    Sketcher.Constraint("Horizontal", 3),
    Sketcher.Constraint("PointOnObject", 0, 2, -1),
    Sketcher.Constraint("DistanceX", 1, 1, 1, 2, 19.0),
    Sketcher.Constraint("DistanceY", 0, 2, 0, 1, 37.0),
    Sketcher.Constraint("DistanceX", -1, 1, 0, 2, 22.0),
])
pad24 = body35.newObject("PartDesign::Pad", "Pad023")
pad24.Profile = sketch24
pad24.Length = 4
doc.recompute()

boolean27 = body35.newObject("PartDesign::Boolean", "Boolean026")
boolean27.Type = "Fuse"
boolean27.addObjects([body33])
doc.recompute()

boolean28 = body35.newObject("PartDesign::Boolean", "Boolean027")
boolean28.Type = "Fuse"
boolean28.addObjects([body34])
doc.recompute()

boolean29 = body35.newObject("PartDesign::Boolean", "Boolean028")
boolean29.Type = "Cut"
boolean29.addObjects([body32])
body36 = doc.addObject("PartDesign::Body", "Body035")
body36.AllowCompound = True
doc.recompute()

body35.Placement = App.Placement(App.Vector(79, 0, 0), App.Rotation(App.Vector(0, 0, 1), 0))
boolean30 = body36.newObject("PartDesign::Boolean", "Boolean029")
boolean30.Type = "Fuse"
boolean30.addObjects([body35])
body37 = doc.addObject("PartDesign::Body", "Body036")

sketch25 = body37.newObject("Sketcher::SketchObject", "Sketch024")
sketch25.AttachmentSupport = (doc.getObject("XY_Plane036"), [""])
sketch25.MapMode = "FlatFace"
sketch25.AttachmentOffset = App.Placement(App.Vector(0, 0, 2.75), App.Rotation())
add_polygon(sketch25, [(101, 41), (101, -4), (311, -4), (311, 41)])
sketch25.addConstraint([
    Sketcher.Constraint("Vertical", 0),
    Sketcher.Constraint("Horizontal", 1),
    Sketcher.Constraint("Vertical", 2),
    Sketcher.Constraint("Horizontal", 3),
    Sketcher.Constraint("DistanceY", 0, 2, 0, 1, 45.0),
    Sketcher.Constraint("DistanceX", 1, 1, 1, 2, 210.4),
    Sketcher.Constraint("DistanceX", -1, 1, 0, 2, 101.0),
    Sketcher.Constraint("DistanceY", 0, 2, -1, 1, 4.0),
])
pad25 = body37.newObject("PartDesign::Pad", "Pad024")
pad25.Profile = sketch25
pad25.Length = 37.95
body38 = doc.addObject("PartDesign::Body", "Body037")

sketch26 = body38.newObject("Sketcher::SketchObject", "Sketch025")
sketch26.AttachmentSupport = (doc.getObject("XY_Plane037"), [""])
sketch26.MapMode = "FlatFace"
add_polygon(sketch26, [(0, 37), (0, 0), (3, 0), (3, 37)])
sketch26.addConstraint([
    Sketcher.Constraint("Vertical", 0),
    Sketcher.Constraint("Horizontal", 1),
    Sketcher.Constraint("Vertical", 2),
    Sketcher.Constraint("Horizontal", 3),
    Sketcher.Constraint("Coincident", 0, 2, -1, 1),
    Sketcher.Constraint("DistanceX", 1, 1, 1, 2, 3.0),
    Sketcher.Constraint("DistanceY", 0, 2, 0, 1, 37.0),
])
pad26 = body38.newObject("PartDesign::Pad", "Pad025")
pad26.Profile = sketch26
pad26.Length = 17.92
body39 = doc.addObject("PartDesign::Body", "Body038")
doc.recompute()

body38.Placement = App.Placement(App.Vector(314.75, -3, 13.25), App.Rotation(App.Vector(0, 0, 1), 45))
boolean31 = body39.newObject("PartDesign::Boolean", "Boolean030")
boolean31.Type = "Fuse"
boolean31.addObjects([body38])
body40 = doc.addObject("PartDesign::Body", "Body039")

sketch27 = body40.newObject("Sketcher::SketchObject", "Sketch026")
sketch27.AttachmentSupport = (doc.getObject("XY_Plane039"), [""])
sketch27.MapMode = "FlatFace"
add_polygon(sketch27, [(0, 37), (0, 0), (3, 0), (3, 37)])
sketch27.addConstraint([
    Sketcher.Constraint("Vertical", 0),
    Sketcher.Constraint("Horizontal", 1),
    Sketcher.Constraint("Vertical", 2),
    Sketcher.Constraint("Horizontal", 3),
    Sketcher.Constraint("Coincident", 0, 2, -1, 1),
    Sketcher.Constraint("DistanceX", 1, 1, 1, 2, 3.0),
    Sketcher.Constraint("DistanceY", 0, 2, 0, 1, 37.0),
])
pad27 = body40.newObject("PartDesign::Pad", "Pad026")
pad27.Profile = sketch27
pad27.Length = 17.92
body41 = doc.addObject("PartDesign::Body", "Body040")
doc.recompute()

body40.Placement = App.Placement(App.Vector(313, 0, 12.75), App.Rotation(App.Vector(0, 1, 0), 55))
boolean32 = body41.newObject("PartDesign::Boolean", "Boolean031")
boolean32.Type = "Fuse"
boolean32.addObjects([body40])
body42 = doc.addObject("PartDesign::Body", "Body041")

sketch28 = body42.newObject("Sketcher::SketchObject", "Sketch027")
sketch28.AttachmentSupport = (doc.getObject("XY_Plane041"), [""])
sketch28.MapMode = "FlatFace"
add_polygon(sketch28, [(0, 37), (0, 0), (3, 0), (3, 37)])
sketch28.addConstraint([
    Sketcher.Constraint("Vertical", 0),
    Sketcher.Constraint("Horizontal", 1),
    Sketcher.Constraint("Vertical", 2),
    Sketcher.Constraint("Horizontal", 3),
    Sketcher.Constraint("Coincident", 0, 2, -1, 1),
    Sketcher.Constraint("DistanceX", 1, 1, 1, 2, 3.0),
    Sketcher.Constraint("DistanceY", 0, 2, 0, 1, 37.0),
])
pad28 = body42.newObject("PartDesign::Pad", "Pad027")
pad28.Profile = sketch28
pad28.Length = 17.92
body43 = doc.addObject("PartDesign::Body", "Body042")
body43.AllowCompound = True
doc.recompute()

body42.Placement = App.Placement(App.Vector(313, 0, 35.35), App.Rotation(App.Vector(0, 1, 0), 125))
boolean33 = body43.newObject("PartDesign::Boolean", "Boolean032")
boolean33.Type = "Fuse"
boolean33.addObjects([body42])
doc.recompute()

boolean34 = body43.newObject("PartDesign::Boolean", "Boolean033")
boolean34.Type = "Fuse"
boolean34.addObjects([body41])
body44 = doc.addObject("PartDesign::Body", "Body043")

sketch29 = body44.newObject("Sketcher::SketchObject", "Sketch028")
sketch29.AttachmentSupport = (doc.getObject("XY_Plane043"), [""])
sketch29.MapMode = "FlatFace"
sketch29.AttachmentOffset = App.Placement(App.Vector(0, 0, 13.25), App.Rotation())
add_polygon(sketch29, [(313.8, 37), (313.8, 0), (316.8, 0), (316.8, 37)])
sketch29.addConstraint([
    Sketcher.Constraint("Vertical", 0),
    Sketcher.Constraint("Horizontal", 1),
    Sketcher.Constraint("Vertical", 2),
    Sketcher.Constraint("Horizontal", 3),
    Sketcher.Constraint("PointOnObject", 0, 2, -1),
    Sketcher.Constraint("DistanceX", 1, 1, 1, 2, 3.0),
    Sketcher.Constraint("DistanceY", 0, 2, 0, 1, 37.0),
    Sketcher.Constraint("DistanceX", -1, 1, 0, 2, 313.75),
])
pad29 = body44.newObject("PartDesign::Pad", "Pad028")
pad29.Profile = sketch29
pad29.Length = 17.92
doc.recompute()

boolean35 = body44.newObject("PartDesign::Boolean", "Boolean034")
boolean35.Type = "Cut"
boolean35.addObjects([body43])
doc.recompute()

boolean36 = body44.newObject("PartDesign::Boolean", "Boolean035")
boolean36.Type = "Cut"
boolean36.addObjects([body39])
body45 = doc.addObject("PartDesign::Body", "Body044")
doc.recompute()

body44.Placement = App.Placement(App.Vector(413.25, 0, 44.45), App.Rotation(App.Vector(0, 1, 0), 180))
boolean37 = body45.newObject("PartDesign::Boolean", "Boolean036")
boolean37.Type = "Fuse"
boolean37.addObjects([body44])
body46 = doc.addObject("PartDesign::Body", "Body045")

sketch30 = body46.newObject("Sketcher::SketchObject", "Sketch029")
sketch30.AttachmentSupport = (doc.getObject("XY_Plane045"), [""])
sketch30.MapMode = "FlatFace"
add_polygon(sketch30, [(0, 37), (0, 0), (3, 0), (3, 37)])
sketch30.addConstraint([
    Sketcher.Constraint("Vertical", 0),
    Sketcher.Constraint("Horizontal", 1),
    Sketcher.Constraint("Vertical", 2),
    Sketcher.Constraint("Horizontal", 3),
    Sketcher.Constraint("Coincident", 0, 2, -1, 1),
    Sketcher.Constraint("DistanceX", 1, 1, 1, 2, 3.0),
    Sketcher.Constraint("DistanceY", 0, 2, 0, 1, 37.0),
])
pad30 = body46.newObject("PartDesign::Pad", "Pad029")
pad30.Profile = sketch30
pad30.Length = 17.92
body47 = doc.addObject("PartDesign::Body", "Body046")
doc.recompute()

body46.Placement = App.Placement(App.Vector(314.75, -3, 13.25), App.Rotation(App.Vector(0, 0, 1), 45))
boolean38 = body47.newObject("PartDesign::Boolean", "Boolean037")
boolean38.Type = "Fuse"
boolean38.addObjects([body46])
body48 = doc.addObject("PartDesign::Body", "Body047")

sketch31 = body48.newObject("Sketcher::SketchObject", "Sketch030")
sketch31.AttachmentSupport = (doc.getObject("XY_Plane047"), [""])
sketch31.MapMode = "FlatFace"
add_polygon(sketch31, [(0, 37), (0, 0), (3, 0), (3, 37)])
sketch31.addConstraint([
    Sketcher.Constraint("Vertical", 0),
    Sketcher.Constraint("Horizontal", 1),
    Sketcher.Constraint("Vertical", 2),
    Sketcher.Constraint("Horizontal", 3),
    Sketcher.Constraint("Coincident", 0, 2, -1, 1),
    Sketcher.Constraint("DistanceX", 1, 1, 1, 2, 3.0),
    Sketcher.Constraint("DistanceY", 0, 2, 0, 1, 37.0),
])
pad31 = body48.newObject("PartDesign::Pad", "Pad030")
pad31.Profile = sketch31
pad31.Length = 17.92
body49 = doc.addObject("PartDesign::Body", "Body048")
doc.recompute()

body48.Placement = App.Placement(App.Vector(313, 0, 12.75), App.Rotation(App.Vector(0, 1, 0), 55))
boolean39 = body49.newObject("PartDesign::Boolean", "Boolean038")
boolean39.Type = "Fuse"
boolean39.addObjects([body48])
body50 = doc.addObject("PartDesign::Body", "Body049")

sketch32 = body50.newObject("Sketcher::SketchObject", "Sketch031")
sketch32.AttachmentSupport = (doc.getObject("XY_Plane049"), [""])
sketch32.MapMode = "FlatFace"
add_polygon(sketch32, [(0, 37), (0, 0), (3, 0), (3, 37)])
sketch32.addConstraint([
    Sketcher.Constraint("Vertical", 0),
    Sketcher.Constraint("Horizontal", 1),
    Sketcher.Constraint("Vertical", 2),
    Sketcher.Constraint("Horizontal", 3),
    Sketcher.Constraint("Coincident", 0, 2, -1, 1),
    Sketcher.Constraint("DistanceX", 1, 1, 1, 2, 3.0),
    Sketcher.Constraint("DistanceY", 0, 2, 0, 1, 37.0),
])
pad32 = body50.newObject("PartDesign::Pad", "Pad031")
pad32.Profile = sketch32
pad32.Length = 17.92
body51 = doc.addObject("PartDesign::Body", "Body050")
body51.AllowCompound = True
doc.recompute()

body50.Placement = App.Placement(App.Vector(313, 0, 35.35), App.Rotation(App.Vector(0, 1, 0), 125))
boolean40 = body51.newObject("PartDesign::Boolean", "Boolean039")
boolean40.Type = "Fuse"
boolean40.addObjects([body50])
doc.recompute()

boolean41 = body51.newObject("PartDesign::Boolean", "Boolean040")
boolean41.Type = "Fuse"
boolean41.addObjects([body49])
body52 = doc.addObject("PartDesign::Body", "Body051")

sketch33 = body52.newObject("Sketcher::SketchObject", "Sketch032")
sketch33.AttachmentSupport = (doc.getObject("XY_Plane051"), [""])
sketch33.MapMode = "FlatFace"
sketch33.AttachmentOffset = App.Placement(App.Vector(0, 0, 13.25), App.Rotation())
add_polygon(sketch33, [(313.8, 37), (313.8, 0), (316.8, 0), (316.8, 37)])
sketch33.addConstraint([
    Sketcher.Constraint("Vertical", 0),
    Sketcher.Constraint("Horizontal", 1),
    Sketcher.Constraint("Vertical", 2),
    Sketcher.Constraint("Horizontal", 3),
    Sketcher.Constraint("PointOnObject", 0, 2, -1),
    Sketcher.Constraint("DistanceX", 1, 1, 1, 2, 3.0),
    Sketcher.Constraint("DistanceY", 0, 2, 0, 1, 37.0),
    Sketcher.Constraint("DistanceX", -1, 1, 0, 2, 313.75),
])
pad33 = body52.newObject("PartDesign::Pad", "Pad032")
pad33.Profile = sketch33
pad33.Length = 17.92
doc.recompute()

boolean42 = body52.newObject("PartDesign::Boolean", "Boolean041")
boolean42.Type = "Cut"
boolean42.addObjects([body51])
doc.recompute()

boolean43 = body52.newObject("PartDesign::Boolean", "Boolean042")
boolean43.Type = "Cut"
boolean43.addObjects([body47])
body53 = doc.addObject("PartDesign::Body", "Body052")

sketch34 = body53.newObject("Sketcher::SketchObject", "Sketch033")
sketch34.AttachmentSupport = (doc.getObject("XY_Plane052"), [""])
sketch34.MapMode = "FlatFace"
add_polygon(sketch34, [(96, 37), (96, -3), (316, -3), (316, 37)])
sketch34.addConstraint([
    Sketcher.Constraint("Vertical", 0),
    Sketcher.Constraint("Horizontal", 1),
    Sketcher.Constraint("Vertical", 2),
    Sketcher.Constraint("Horizontal", 3),
    Sketcher.Constraint("DistanceY", 0, 2, 0, 1, 40.0),
    Sketcher.Constraint("DistanceX", 1, 1, 1, 2, 219.5),
    Sketcher.Constraint("DistanceY", 0, 2, -1, 1, 3.0),
    Sketcher.Constraint("DistanceX", -1, 1, 1, 2, 316.0),
])
pad34 = body53.newObject("PartDesign::Pad", "Pad033")
pad34.Profile = sketch34
pad34.Length = 44.5
doc.recompute()

boolean44 = body53.newObject("PartDesign::Boolean", "Boolean043")
boolean44.Type = "Cut"
boolean44.addObjects([body52])
doc.recompute()

boolean45 = body53.newObject("PartDesign::Boolean", "Boolean044")
boolean45.Type = "Cut"
boolean45.addObjects([body45])
doc.recompute()

boolean46 = body53.newObject("PartDesign::Boolean", "Boolean045")
boolean46.Type = "Cut"
boolean46.addObjects([body37])
doc.recompute()

boolean47 = body53.newObject("PartDesign::Boolean", "Boolean046")
boolean47.Type = "Fuse"
boolean47.addObjects([body6])
doc.recompute()

boolean48 = body53.newObject("PartDesign::Boolean", "Boolean047")
boolean48.Type = "Fuse"
boolean48.addObjects([body12])
doc.recompute()

boolean49 = body53.newObject("PartDesign::Boolean", "Boolean048")
boolean49.Type = "Fuse"
boolean49.addObjects([body18])
doc.recompute()

boolean50 = body53.newObject("PartDesign::Boolean", "Boolean049")
boolean50.Type = "Fuse"
boolean50.addObjects([body24])
doc.recompute()

boolean51 = body53.newObject("PartDesign::Boolean", "Boolean050")
boolean51.Type = "Fuse"
boolean51.addObjects([body30])
doc.recompute()

boolean52 = body53.newObject("PartDesign::Boolean", "Boolean051")
boolean52.Type = "Fuse"
boolean52.addObjects([body36])

doc.recompute()
